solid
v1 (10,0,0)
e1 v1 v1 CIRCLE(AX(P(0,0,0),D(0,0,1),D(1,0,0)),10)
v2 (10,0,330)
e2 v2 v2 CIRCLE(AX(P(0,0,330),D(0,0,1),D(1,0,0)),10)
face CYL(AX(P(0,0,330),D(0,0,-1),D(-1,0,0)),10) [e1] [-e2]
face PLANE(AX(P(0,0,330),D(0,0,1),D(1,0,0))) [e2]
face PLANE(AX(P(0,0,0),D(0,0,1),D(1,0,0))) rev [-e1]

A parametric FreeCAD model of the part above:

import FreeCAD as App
import Part
import Sketcher

V = App.Vector

doc = App.newDocument("Part")
body = doc.addObject("PartDesign::Body", "Body")

sketch1 = body.newObject("Sketcher::SketchObject", "Sketch")
sketch1.AttachmentSupport = (doc.getObject("XY_Plane"), [""])
sketch1.MapMode = "FlatFace"
sketch1.addGeometry(Part.Circle(V(0, 0, 0), V(0, 0, 1), 10), False)
sketch1.addConstraint(Sketcher.Constraint("Coincident", 0, 3, -1, 1))
sketch1.addConstraint(Sketcher.Constraint("Diameter", 0, 20.0))
pad1 = body.newObject("PartDesign::Pad", "Pad")
pad1.Profile = sketch1
pad1.Length = 330

doc.recompute()
